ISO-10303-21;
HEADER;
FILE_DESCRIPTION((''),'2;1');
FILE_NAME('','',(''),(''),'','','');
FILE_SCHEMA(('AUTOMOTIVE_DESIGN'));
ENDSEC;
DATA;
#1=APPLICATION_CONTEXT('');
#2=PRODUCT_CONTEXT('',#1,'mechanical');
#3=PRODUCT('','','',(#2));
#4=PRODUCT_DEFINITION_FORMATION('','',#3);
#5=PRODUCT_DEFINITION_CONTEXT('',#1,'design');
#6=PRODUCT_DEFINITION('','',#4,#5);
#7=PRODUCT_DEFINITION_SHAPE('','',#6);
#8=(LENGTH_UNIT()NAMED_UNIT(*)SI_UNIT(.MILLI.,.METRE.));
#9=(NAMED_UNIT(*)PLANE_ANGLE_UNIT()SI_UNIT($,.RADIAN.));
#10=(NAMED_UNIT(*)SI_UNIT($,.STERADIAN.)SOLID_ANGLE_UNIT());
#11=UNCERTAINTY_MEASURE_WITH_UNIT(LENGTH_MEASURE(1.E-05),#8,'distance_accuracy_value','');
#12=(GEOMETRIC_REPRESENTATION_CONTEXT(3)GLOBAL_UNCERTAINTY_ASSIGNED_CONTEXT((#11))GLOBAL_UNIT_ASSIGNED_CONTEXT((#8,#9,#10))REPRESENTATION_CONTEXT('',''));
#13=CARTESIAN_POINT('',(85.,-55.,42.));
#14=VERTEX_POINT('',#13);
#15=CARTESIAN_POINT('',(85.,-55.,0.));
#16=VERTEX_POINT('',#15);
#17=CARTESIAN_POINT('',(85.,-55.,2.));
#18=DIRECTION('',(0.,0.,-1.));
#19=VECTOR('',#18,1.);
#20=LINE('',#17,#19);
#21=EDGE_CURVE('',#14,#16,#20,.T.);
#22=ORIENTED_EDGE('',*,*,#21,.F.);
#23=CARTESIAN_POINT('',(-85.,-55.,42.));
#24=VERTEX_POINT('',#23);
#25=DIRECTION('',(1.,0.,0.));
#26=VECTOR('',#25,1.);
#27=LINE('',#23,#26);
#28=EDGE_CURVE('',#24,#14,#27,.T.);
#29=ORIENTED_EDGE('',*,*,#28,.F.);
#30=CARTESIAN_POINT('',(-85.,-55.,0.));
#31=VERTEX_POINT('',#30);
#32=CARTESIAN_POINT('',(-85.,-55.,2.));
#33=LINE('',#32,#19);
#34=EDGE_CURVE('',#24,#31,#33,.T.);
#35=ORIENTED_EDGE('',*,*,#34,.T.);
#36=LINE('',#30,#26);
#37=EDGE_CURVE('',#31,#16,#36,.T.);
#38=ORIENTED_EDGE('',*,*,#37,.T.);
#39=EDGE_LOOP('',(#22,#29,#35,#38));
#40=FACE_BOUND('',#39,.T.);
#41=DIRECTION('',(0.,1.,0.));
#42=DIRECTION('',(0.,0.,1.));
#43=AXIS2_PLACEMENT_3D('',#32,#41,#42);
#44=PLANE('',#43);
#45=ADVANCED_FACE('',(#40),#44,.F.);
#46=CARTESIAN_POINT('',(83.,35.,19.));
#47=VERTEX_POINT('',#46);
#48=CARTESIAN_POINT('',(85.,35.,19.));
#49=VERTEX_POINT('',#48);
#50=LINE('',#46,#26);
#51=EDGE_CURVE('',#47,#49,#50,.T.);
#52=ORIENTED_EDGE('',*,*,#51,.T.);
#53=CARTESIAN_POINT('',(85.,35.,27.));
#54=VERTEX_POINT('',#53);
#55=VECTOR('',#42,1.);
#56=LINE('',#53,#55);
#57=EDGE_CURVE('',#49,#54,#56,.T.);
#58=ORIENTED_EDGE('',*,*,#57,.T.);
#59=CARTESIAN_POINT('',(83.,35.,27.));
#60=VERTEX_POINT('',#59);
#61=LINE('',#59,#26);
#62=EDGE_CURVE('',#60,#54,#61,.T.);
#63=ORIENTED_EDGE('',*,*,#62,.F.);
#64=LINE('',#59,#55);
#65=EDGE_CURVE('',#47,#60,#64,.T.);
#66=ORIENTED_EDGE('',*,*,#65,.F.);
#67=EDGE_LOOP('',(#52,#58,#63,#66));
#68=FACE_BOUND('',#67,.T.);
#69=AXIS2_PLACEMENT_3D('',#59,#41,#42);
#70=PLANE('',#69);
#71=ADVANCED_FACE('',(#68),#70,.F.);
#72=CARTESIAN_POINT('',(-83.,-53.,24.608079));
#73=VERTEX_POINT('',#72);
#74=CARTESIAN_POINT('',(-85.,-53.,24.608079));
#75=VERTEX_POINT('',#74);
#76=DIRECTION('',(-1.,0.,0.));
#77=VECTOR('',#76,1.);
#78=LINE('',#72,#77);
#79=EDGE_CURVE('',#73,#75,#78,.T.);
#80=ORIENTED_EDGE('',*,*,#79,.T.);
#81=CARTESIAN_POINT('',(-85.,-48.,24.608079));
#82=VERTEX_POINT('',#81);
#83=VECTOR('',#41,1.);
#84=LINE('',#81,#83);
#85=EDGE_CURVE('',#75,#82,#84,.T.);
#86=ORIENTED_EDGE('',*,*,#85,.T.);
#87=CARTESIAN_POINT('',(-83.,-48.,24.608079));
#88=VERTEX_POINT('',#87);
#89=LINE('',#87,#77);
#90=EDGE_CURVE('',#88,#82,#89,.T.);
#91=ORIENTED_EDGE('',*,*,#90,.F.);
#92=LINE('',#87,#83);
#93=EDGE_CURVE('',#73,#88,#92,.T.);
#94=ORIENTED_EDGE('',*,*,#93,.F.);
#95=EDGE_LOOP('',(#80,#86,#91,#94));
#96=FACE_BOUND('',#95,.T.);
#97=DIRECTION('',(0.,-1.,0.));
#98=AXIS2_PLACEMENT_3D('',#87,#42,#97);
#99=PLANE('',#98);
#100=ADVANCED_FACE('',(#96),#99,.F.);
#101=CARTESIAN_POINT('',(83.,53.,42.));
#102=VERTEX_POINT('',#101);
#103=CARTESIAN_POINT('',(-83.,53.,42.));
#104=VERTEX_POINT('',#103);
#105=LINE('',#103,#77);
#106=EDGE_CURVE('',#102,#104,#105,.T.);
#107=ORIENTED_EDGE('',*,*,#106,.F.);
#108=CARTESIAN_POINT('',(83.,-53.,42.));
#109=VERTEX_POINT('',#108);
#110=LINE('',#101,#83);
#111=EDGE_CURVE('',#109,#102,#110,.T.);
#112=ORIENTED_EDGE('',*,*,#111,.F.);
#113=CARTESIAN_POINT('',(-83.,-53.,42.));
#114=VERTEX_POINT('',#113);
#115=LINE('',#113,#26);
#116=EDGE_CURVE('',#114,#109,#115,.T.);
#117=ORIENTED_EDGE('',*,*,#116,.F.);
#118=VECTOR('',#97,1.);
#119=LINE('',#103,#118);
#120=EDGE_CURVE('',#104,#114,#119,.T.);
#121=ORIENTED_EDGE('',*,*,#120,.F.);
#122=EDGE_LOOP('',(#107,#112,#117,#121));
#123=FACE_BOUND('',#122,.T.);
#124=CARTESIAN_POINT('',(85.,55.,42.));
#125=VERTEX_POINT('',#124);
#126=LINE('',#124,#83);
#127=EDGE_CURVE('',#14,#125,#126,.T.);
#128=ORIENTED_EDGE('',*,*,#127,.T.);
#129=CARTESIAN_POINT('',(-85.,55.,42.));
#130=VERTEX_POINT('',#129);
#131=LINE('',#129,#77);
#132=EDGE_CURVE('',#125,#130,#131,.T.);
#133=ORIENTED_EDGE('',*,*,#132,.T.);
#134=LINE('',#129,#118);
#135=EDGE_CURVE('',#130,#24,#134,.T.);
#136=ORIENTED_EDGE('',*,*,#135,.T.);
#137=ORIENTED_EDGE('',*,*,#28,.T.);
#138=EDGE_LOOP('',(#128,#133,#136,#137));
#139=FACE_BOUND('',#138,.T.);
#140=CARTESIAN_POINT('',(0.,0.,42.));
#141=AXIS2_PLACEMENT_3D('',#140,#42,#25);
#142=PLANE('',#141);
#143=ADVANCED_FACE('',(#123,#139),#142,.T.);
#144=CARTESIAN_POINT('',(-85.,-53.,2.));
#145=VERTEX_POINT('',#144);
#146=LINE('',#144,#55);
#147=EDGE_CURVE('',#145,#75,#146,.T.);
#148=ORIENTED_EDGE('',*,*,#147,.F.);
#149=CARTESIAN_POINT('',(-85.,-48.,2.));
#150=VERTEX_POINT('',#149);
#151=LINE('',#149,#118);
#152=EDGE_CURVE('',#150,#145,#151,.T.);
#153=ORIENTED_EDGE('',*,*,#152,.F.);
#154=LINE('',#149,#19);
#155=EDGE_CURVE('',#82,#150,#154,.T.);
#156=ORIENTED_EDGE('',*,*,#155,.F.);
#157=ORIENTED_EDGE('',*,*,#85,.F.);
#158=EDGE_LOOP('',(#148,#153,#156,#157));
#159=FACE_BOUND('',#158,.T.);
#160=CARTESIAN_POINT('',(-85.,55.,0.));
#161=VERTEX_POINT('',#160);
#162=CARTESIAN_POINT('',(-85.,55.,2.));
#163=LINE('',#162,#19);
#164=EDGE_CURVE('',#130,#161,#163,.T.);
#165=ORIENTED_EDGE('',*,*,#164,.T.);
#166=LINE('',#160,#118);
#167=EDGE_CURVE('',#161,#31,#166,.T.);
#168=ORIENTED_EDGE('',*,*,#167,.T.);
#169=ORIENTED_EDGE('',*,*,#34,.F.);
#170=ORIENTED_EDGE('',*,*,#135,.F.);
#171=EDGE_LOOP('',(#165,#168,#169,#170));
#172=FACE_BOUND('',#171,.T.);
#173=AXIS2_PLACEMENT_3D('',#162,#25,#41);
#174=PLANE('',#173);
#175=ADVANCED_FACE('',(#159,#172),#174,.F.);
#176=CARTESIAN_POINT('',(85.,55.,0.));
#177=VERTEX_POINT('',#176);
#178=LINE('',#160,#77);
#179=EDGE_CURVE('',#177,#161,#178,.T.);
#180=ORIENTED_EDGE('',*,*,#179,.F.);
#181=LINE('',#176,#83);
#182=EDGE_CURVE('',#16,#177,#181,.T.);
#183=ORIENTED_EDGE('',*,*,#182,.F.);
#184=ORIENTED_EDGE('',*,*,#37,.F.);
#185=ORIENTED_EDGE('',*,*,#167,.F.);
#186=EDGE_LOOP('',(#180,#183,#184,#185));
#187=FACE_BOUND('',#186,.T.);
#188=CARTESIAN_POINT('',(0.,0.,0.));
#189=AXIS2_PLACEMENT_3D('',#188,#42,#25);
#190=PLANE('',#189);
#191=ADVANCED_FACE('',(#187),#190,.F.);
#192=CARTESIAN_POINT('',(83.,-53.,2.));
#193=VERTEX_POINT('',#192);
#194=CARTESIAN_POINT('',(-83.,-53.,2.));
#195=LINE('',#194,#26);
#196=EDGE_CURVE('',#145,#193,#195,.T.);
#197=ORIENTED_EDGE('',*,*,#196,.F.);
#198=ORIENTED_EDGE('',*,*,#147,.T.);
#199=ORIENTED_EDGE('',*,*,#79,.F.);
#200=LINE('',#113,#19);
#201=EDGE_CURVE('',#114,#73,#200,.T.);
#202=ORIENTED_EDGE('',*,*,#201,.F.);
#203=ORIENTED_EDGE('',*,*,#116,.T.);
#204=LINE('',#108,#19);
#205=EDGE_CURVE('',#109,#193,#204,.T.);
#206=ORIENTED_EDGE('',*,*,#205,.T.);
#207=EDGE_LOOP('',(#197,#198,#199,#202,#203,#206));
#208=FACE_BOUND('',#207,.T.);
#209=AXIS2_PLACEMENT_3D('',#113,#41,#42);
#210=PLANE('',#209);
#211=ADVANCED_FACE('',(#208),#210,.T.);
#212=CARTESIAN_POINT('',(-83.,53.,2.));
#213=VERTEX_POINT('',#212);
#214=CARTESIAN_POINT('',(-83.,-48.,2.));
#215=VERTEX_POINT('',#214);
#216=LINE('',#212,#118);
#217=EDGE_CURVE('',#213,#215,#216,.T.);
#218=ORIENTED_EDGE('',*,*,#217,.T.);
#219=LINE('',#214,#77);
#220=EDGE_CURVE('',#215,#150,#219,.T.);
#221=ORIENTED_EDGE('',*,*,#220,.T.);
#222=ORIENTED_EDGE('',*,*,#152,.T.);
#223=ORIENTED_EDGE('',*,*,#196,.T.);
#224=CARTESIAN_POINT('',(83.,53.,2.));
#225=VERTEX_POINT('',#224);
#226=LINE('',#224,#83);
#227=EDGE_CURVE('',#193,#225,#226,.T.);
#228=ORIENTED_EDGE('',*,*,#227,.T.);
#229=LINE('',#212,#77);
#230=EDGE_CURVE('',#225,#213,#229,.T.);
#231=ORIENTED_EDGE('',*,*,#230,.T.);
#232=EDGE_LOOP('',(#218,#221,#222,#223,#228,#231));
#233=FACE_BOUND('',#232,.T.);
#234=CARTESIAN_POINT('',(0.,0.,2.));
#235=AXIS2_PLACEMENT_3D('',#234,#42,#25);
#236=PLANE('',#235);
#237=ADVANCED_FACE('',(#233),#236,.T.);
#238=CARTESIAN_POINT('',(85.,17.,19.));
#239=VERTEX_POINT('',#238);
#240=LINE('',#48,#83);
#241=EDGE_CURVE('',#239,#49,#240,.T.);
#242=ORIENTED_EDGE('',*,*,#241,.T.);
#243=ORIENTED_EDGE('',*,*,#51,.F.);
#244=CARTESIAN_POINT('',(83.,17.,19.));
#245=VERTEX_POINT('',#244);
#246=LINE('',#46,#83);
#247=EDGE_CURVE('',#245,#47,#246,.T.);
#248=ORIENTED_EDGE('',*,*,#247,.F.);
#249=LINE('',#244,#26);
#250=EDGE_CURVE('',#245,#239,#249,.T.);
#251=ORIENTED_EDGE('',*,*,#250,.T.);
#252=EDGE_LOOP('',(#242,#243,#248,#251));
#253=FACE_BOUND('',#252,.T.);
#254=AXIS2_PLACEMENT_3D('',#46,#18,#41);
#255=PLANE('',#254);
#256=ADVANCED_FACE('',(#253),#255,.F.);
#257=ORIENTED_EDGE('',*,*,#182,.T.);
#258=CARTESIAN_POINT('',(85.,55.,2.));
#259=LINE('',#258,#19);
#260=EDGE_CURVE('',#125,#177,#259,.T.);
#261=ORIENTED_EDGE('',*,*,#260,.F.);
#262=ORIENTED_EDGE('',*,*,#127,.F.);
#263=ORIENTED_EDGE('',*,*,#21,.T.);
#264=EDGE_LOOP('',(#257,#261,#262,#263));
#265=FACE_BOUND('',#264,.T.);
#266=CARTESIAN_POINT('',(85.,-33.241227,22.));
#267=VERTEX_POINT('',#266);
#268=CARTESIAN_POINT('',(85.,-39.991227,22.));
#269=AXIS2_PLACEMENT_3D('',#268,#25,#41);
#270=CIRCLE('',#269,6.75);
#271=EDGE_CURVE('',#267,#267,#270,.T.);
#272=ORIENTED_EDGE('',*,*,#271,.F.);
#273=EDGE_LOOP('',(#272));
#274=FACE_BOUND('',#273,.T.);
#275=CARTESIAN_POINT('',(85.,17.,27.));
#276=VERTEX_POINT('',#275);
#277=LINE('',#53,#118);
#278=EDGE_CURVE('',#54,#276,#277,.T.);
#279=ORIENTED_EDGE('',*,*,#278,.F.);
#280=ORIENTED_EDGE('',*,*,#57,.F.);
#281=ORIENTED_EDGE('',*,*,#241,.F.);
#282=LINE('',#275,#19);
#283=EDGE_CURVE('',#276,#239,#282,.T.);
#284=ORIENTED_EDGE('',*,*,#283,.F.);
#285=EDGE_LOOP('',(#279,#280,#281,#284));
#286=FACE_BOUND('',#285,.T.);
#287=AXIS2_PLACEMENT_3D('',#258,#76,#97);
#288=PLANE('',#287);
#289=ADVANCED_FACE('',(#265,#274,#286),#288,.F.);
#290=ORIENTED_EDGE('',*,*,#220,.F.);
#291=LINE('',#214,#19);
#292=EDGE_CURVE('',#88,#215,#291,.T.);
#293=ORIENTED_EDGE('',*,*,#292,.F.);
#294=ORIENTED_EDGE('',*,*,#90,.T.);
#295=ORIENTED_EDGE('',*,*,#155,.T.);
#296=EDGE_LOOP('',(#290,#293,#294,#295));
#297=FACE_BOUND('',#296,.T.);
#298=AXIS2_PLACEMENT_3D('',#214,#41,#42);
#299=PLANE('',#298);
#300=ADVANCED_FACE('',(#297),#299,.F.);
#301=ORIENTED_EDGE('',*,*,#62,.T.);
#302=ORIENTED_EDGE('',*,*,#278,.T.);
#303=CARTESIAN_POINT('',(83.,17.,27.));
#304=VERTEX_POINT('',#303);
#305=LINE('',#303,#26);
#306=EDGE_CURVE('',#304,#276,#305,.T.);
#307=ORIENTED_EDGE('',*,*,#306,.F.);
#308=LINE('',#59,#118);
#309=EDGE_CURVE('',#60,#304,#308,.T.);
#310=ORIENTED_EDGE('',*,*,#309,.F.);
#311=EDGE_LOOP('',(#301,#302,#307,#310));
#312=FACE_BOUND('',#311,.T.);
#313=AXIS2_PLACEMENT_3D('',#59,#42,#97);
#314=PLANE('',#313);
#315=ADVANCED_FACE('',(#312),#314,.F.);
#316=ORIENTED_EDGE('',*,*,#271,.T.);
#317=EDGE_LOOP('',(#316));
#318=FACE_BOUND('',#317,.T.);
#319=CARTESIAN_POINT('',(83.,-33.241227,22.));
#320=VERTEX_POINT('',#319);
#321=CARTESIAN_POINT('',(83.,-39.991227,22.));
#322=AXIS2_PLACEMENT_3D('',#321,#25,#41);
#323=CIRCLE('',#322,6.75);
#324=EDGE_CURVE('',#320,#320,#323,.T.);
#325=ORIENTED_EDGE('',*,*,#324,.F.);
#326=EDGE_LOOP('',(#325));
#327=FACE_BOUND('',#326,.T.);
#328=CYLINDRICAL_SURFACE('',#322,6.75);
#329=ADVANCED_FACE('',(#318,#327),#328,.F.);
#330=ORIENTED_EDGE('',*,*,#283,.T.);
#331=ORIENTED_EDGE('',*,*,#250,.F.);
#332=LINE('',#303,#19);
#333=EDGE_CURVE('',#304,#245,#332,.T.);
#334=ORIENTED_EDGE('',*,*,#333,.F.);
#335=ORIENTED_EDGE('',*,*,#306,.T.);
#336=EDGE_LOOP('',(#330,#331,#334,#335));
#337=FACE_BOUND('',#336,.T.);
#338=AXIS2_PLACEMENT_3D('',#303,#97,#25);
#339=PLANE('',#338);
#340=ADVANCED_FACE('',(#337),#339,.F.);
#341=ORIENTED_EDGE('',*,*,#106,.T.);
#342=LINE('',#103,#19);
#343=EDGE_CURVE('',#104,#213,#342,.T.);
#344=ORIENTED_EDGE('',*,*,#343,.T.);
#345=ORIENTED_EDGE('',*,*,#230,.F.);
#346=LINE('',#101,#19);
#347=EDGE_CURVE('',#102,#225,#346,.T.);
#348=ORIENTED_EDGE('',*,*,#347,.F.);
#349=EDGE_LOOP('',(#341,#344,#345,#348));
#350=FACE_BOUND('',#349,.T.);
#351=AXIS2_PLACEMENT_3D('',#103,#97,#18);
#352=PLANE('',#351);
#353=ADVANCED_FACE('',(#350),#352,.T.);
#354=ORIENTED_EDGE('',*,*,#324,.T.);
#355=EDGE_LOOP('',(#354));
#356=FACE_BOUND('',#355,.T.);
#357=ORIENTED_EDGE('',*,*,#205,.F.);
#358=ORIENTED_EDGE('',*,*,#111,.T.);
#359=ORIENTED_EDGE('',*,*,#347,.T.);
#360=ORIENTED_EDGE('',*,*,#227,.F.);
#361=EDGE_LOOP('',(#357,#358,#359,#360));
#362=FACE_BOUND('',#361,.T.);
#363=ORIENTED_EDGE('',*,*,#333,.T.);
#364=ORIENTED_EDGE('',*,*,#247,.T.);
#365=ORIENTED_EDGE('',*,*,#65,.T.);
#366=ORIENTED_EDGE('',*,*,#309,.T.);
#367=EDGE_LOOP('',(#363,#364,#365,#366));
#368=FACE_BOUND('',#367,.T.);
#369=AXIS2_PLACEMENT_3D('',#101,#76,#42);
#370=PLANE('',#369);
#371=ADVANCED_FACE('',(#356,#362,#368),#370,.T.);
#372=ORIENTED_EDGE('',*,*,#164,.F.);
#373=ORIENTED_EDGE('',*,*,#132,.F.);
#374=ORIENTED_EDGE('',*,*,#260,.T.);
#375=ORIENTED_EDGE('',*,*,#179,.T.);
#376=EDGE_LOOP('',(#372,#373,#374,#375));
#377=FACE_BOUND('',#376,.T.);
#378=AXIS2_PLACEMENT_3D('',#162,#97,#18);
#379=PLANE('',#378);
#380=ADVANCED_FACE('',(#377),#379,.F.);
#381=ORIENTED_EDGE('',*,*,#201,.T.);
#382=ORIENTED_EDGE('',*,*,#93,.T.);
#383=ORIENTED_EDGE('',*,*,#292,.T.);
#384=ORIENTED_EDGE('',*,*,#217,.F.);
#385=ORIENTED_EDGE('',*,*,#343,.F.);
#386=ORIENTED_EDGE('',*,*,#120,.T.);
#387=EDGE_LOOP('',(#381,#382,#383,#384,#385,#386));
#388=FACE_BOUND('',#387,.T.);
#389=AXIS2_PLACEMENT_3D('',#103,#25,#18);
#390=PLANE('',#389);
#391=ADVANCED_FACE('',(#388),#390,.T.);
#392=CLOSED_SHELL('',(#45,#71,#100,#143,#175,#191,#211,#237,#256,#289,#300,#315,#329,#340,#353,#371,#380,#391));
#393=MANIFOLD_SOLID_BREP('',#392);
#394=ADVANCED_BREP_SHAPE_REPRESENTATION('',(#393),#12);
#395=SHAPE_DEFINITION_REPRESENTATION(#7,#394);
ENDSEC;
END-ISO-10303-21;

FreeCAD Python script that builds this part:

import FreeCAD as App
import Part
import Sketcher

doc = App.newDocument("Part")
params = doc.addObject("Spreadsheet::Sheet", "Params")
for row, (alias, value) in enumerate([
    ("sketch1_width", "170 mm"),
    ("sketch1_height", "110 mm"),
    ("pad1_length", "2 mm"),
    ("sketch2_width", "170 mm"),
    ("sketch2_width2", "166 mm"),
    ("sketch2_height", "110 mm"),
    ("sketch2_height2", "106 mm"),
    ("pad2_length", "40 mm"),
    ("sketch3_diameter", "13.5 mm"),
    ("sketch3_width", "18 mm"),
    ("sketch3_height", "8 mm"),
    ("pocket1_length", "2 mm"),
    ("sketch4_width", "5 mm"),
    ("pocket2_length", "2 mm"),
], start=1):
    params.set(f"A{row}", alias)
    params.set(f"B{row}", "=" + value)
    params.setAlias(f"B{row}", alias)

body = doc.addObject("PartDesign::Body", "Body")

# Sketch on XY plane
sketch1 = doc.addObject("Sketcher::SketchObject", "Sketch")
body.addObject(sketch1)
sketch1.AttachmentSupport = (doc.XY_Plane, [""])
sketch1.MapMode = "FlatFace"
sketch1.addGeometry(Part.LineSegment(App.Vector(-85, 55, 0), App.Vector(-85, -55, 0)), False)
sketch1.addGeometry(Part.LineSegment(App.Vector(-85, -55, 0), App.Vector(85, -55, 0)), False)
sketch1.addGeometry(Part.LineSegment(App.Vector(85, -55, 0), App.Vector(85, 55, 0)), False)
sketch1.addGeometry(Part.LineSegment(App.Vector(85, 55, 0), App.Vector(-85, 55, 0)), False)
sketch1.addConstraint(Sketcher.Constraint("Coincident", 0, 2, 1, 1))
sketch1.addConstraint(Sketcher.Constraint("Coincident", 1, 2, 2, 1))
sketch1.addConstraint(Sketcher.Constraint("Coincident", 2, 2, 3, 1))
sketch1.addConstraint(Sketcher.Constraint("Coincident", 3, 2, 0, 1))
sketch1.addConstraint(Sketcher.Constraint("Vertical", 0))
sketch1.addConstraint(Sketcher.Constraint("Horizontal", 1))
sketch1.addConstraint(Sketcher.Constraint("Vertical", 2))
sketch1.addConstraint(Sketcher.Constraint("Horizontal", 3))
sketch1.addConstraint(Sketcher.Constraint("Symmetric", 0, 2, 2, 2, -1, 1))
sketch1.addConstraint(Sketcher.Constraint("DistanceX", 1, 1, 1, 2, 170.0))
sketch1.addConstraint(Sketcher.Constraint("DistanceY", 0, 2, 0, 1, 110.0))
sketch1.setExpression("Constraints[9]", "Params.sketch1_width")
sketch1.setExpression("Constraints[10]", "Params.sketch1_height")
pad1 = doc.addObject("PartDesign::Pad", "Pad")
body.addObject(pad1)
pad1.Profile = sketch1
pad1.setExpression("Length", "Params.pad1_length")

# Sketch on XY plane
sketch2 = doc.addObject("Sketcher::SketchObject", "Sketch001")
body.addObject(sketch2)
sketch2.AttachmentSupport = (doc.XY_Plane, [""])
sketch2.MapMode = "FlatFace"
sketch2.AttachmentOffset = App.Placement(App.Vector(0, 0, 2), App.Rotation())
sketch2.addGeometry(Part.LineSegment(App.Vector(-85, 55, 0), App.Vector(-85, -55, 0)), False)
sketch2.addGeometry(Part.LineSegment(App.Vector(-85, -55, 0), App.Vector(85, -55, 0)), False)
sketch2.addGeometry(Part.LineSegment(App.Vector(85, -55, 0), App.Vector(85, 55, 0)), False)
sketch2.addGeometry(Part.LineSegment(App.Vector(85, 55, 0), App.Vector(-85, 55, 0)), False)
sketch2.addGeometry(Part.LineSegment(App.Vector(83, -53, 0), App.Vector(-83, -53, 0)), False)
sketch2.addGeometry(Part.LineSegment(App.Vector(-83, -53, 0), App.Vector(-83, 53, 0)), False)
sketch2.addGeometry(Part.LineSegment(App.Vector(-83, 53, 0), App.Vector(83, 53, 0)), False)
sketch2.addGeometry(Part.LineSegment(App.Vector(83, 53, 0), App.Vector(83, -53, 0)), False)
sketch2.addConstraint(Sketcher.Constraint("Coincident", 0, 2, 1, 1))
sketch2.addConstraint(Sketcher.Constraint("Coincident", 1, 2, 2, 1))
sketch2.addConstraint(Sketcher.Constraint("Coincident", 2, 2, 3, 1))
sketch2.addConstraint(Sketcher.Constraint("Coincident", 3, 2, 0, 1))
sketch2.addConstraint(Sketcher.Constraint("Coincident", 4, 2, 5, 1))
sketch2.addConstraint(Sketcher.Constraint("Coincident", 5, 2, 6, 1))
sketch2.addConstraint(Sketcher.Constraint("Coincident", 6, 2, 7, 1))
sketch2.addConstraint(Sketcher.Constraint("Coincident", 7, 2, 4, 1))
sketch2.addConstraint(Sketcher.Constraint("Vertical", 0))
sketch2.addConstraint(Sketcher.Constraint("Horizontal", 1))
sketch2.addConstraint(Sketcher.Constraint("Vertical", 2))
sketch2.addConstraint(Sketcher.Constraint("Horizontal", 3))
sketch2.addConstraint(Sketcher.Constraint("Horizontal", 4))
sketch2.addConstraint(Sketcher.Constraint("Vertical", 5))
sketch2.addConstraint(Sketcher.Constraint("Horizontal", 6))
sketch2.addConstraint(Sketcher.Constraint("Vertical", 7))
sketch2.addConstraint(Sketcher.Constraint("Symmetric", 0, 2, 2, 2, -1, 1))
sketch2.addConstraint(Sketcher.Constraint("Symmetric", 4, 2, 6, 2, -1, 1))
sketch2.addConstraint(Sketcher.Constraint("DistanceX", 1, 1, 1, 2, 170.0))
sketch2.addConstraint(Sketcher.Constraint("DistanceX", 4, 2, 4, 1, 166.0))
sketch2.addConstraint(Sketcher.Constraint("DistanceY", 0, 2, 0, 1, 110.0))
sketch2.addConstraint(Sketcher.Constraint("DistanceY", 5, 1, 5, 2, 106.0))
sketch2.setExpression("Constraints[18]", "Params.sketch2_width")
sketch2.setExpression("Constraints[19]", "Params.sketch2_width2")
sketch2.setExpression("Constraints[20]", "Params.sketch2_height")
sketch2.setExpression("Constraints[21]", "Params.sketch2_height2")
pad2 = doc.addObject("PartDesign::Pad", "Pad001")
body.addObject(pad2)
pad2.Profile = sketch2
pad2.setExpression("Length", "Params.pad2_length")

# Sketch on YZ plane
sketch3 = doc.addObject("Sketcher::SketchObject", "Sketch002")
body.addObject(sketch3)
sketch3.AttachmentSupport = (doc.YZ_Plane, [""])
sketch3.MapMode = "FlatFace"
sketch3.AttachmentOffset = App.Placement(App.Vector(0, 0, 85), App.Rotation())
sketch3.addGeometry(Part.Circle(App.Vector(-39.991227, 22, 0), App.Vector(0, 0, 1), 6.75), False)
sketch3.addGeometry(Part.LineSegment(App.Vector(35, 27, 0), App.Vector(17, 27, 0)), False)
sketch3.addGeometry(Part.LineSegment(App.Vector(17, 27, 0), App.Vector(17, 19, 0)), False)
sketch3.addGeometry(Part.LineSegment(App.Vector(17, 19, 0), App.Vector(35, 19, 0)), False)
sketch3.addGeometry(Part.LineSegment(App.Vector(35, 19, 0), App.Vector(35, 27, 0)), False)
sketch3.addConstraint(Sketcher.Constraint("Coincident", 1, 2, 2, 1))
sketch3.addConstraint(Sketcher.Constraint("Coincident", 2, 2, 3, 1))
sketch3.addConstraint(Sketcher.Constraint("Coincident", 3, 2, 4, 1))
sketch3.addConstraint(Sketcher.Constraint("Coincident", 4, 2, 1, 1))
sketch3.addConstraint(Sketcher.Constraint("Horizontal", 1))
sketch3.addConstraint(Sketcher.Constraint("Vertical", 2))
sketch3.addConstraint(Sketcher.Constraint("Horizontal", 3))
sketch3.addConstraint(Sketcher.Constraint("Vertical", 4))
sketch3.addConstraint(Sketcher.Constraint("Diameter", 0, 13.5))
sketch3.addConstraint(Sketcher.Constraint("DistanceX", 1, 2, 1, 1, 18.0))
sketch3.addConstraint(Sketcher.Constraint("DistanceY", 2, 2, 2, 1, 8.0))
sketch3.addConstraint(Sketcher.Constraint("DistanceY", -1, 1, 0, 3, 22.0))
sketch3.addConstraint(Sketcher.Constraint("DistanceX", -1, 1, 1, 2, 17.0))
sketch3.addConstraint(Sketcher.Constraint("DistanceY", -1, 1, 1, 2, 27.0))
sketch3.addConstraint(Sketcher.Constraint("DistanceX", 0, 3, -1, 1, 39.991227))
sketch3.setExpression("Constraints[8]", "Params.sketch3_diameter")
sketch3.setExpression("Constraints[9]", "Params.sketch3_width")
sketch3.setExpression("Constraints[10]", "Params.sketch3_height")
pocket1 = doc.addObject("PartDesign::Pocket", "Pocket")
body.addObject(pocket1)
pocket1.Profile = sketch3
pocket1.setExpression("Length", "Params.pocket1_length")

# Sketch on YZ plane
sketch4 = doc.addObject("Sketcher::SketchObject", "Sketch003")
body.addObject(sketch4)
sketch4.AttachmentSupport = (doc.YZ_Plane, [""])
sketch4.MapMode = "FlatFace"
sketch4.AttachmentOffset = App.Placement(App.Vector(0, 0, -85), App.Rotation())
sketch4.addGeometry(Part.LineSegment(App.Vector(-48, 2, 0), App.Vector(-53, 2, 0)), False)
sketch4.addGeometry(Part.LineSegment(App.Vector(-53, 2, 0), App.Vector(-53, 24.608079, 0)), False)
sketch4.addGeometry(Part.LineSegment(App.Vector(-53, 24.608079, 0), App.Vector(-48, 24.608079, 0)), False)
sketch4.addGeometry(Part.LineSegment(App.Vector(-48, 24.608079, 0), App.Vector(-48, 2, 0)), False)
sketch4.addConstraint(Sketcher.Constraint("Coincident", 0, 2, 1, 1))
sketch4.addConstraint(Sketcher.Constraint("Coincident", 1, 2, 2, 1))
sketch4.addConstraint(Sketcher.Constraint("Coincident", 2, 2, 3, 1))
sketch4.addConstraint(Sketcher.Constraint("Coincident", 3, 2, 0, 1))
sketch4.addConstraint(Sketcher.Constraint("Horizontal", 0))
sketch4.addConstraint(Sketcher.Constraint("Vertical", 1))
sketch4.addConstraint(Sketcher.Constraint("Horizontal", 2))
sketch4.addConstraint(Sketcher.Constraint("Vertical", 3))
sketch4.addConstraint(Sketcher.Constraint("DistanceX", 0, 2, 0, 1, 5.0))
sketch4.addConstraint(Sketcher.Constraint("DistanceX", 0, 2, -1, 1, 53.0))
sketch4.addConstraint(Sketcher.Constraint("DistanceY", -1, 1, 0, 2, 2.0))
sketch4.addConstraint(Sketcher.Constraint("DistanceY", 1, 1, 1, 2, 22.608079))
sketch4.setExpression("Constraints[8]", "Params.sketch4_width")
pocket2 = doc.addObject("PartDesign::Pocket", "Pocket001")
body.addObject(pocket2)
pocket2.Profile = sketch4
pocket2.setExpression("Length", "Params.pocket2_length")
pocket2.Reversed = True

doc.recompute()
